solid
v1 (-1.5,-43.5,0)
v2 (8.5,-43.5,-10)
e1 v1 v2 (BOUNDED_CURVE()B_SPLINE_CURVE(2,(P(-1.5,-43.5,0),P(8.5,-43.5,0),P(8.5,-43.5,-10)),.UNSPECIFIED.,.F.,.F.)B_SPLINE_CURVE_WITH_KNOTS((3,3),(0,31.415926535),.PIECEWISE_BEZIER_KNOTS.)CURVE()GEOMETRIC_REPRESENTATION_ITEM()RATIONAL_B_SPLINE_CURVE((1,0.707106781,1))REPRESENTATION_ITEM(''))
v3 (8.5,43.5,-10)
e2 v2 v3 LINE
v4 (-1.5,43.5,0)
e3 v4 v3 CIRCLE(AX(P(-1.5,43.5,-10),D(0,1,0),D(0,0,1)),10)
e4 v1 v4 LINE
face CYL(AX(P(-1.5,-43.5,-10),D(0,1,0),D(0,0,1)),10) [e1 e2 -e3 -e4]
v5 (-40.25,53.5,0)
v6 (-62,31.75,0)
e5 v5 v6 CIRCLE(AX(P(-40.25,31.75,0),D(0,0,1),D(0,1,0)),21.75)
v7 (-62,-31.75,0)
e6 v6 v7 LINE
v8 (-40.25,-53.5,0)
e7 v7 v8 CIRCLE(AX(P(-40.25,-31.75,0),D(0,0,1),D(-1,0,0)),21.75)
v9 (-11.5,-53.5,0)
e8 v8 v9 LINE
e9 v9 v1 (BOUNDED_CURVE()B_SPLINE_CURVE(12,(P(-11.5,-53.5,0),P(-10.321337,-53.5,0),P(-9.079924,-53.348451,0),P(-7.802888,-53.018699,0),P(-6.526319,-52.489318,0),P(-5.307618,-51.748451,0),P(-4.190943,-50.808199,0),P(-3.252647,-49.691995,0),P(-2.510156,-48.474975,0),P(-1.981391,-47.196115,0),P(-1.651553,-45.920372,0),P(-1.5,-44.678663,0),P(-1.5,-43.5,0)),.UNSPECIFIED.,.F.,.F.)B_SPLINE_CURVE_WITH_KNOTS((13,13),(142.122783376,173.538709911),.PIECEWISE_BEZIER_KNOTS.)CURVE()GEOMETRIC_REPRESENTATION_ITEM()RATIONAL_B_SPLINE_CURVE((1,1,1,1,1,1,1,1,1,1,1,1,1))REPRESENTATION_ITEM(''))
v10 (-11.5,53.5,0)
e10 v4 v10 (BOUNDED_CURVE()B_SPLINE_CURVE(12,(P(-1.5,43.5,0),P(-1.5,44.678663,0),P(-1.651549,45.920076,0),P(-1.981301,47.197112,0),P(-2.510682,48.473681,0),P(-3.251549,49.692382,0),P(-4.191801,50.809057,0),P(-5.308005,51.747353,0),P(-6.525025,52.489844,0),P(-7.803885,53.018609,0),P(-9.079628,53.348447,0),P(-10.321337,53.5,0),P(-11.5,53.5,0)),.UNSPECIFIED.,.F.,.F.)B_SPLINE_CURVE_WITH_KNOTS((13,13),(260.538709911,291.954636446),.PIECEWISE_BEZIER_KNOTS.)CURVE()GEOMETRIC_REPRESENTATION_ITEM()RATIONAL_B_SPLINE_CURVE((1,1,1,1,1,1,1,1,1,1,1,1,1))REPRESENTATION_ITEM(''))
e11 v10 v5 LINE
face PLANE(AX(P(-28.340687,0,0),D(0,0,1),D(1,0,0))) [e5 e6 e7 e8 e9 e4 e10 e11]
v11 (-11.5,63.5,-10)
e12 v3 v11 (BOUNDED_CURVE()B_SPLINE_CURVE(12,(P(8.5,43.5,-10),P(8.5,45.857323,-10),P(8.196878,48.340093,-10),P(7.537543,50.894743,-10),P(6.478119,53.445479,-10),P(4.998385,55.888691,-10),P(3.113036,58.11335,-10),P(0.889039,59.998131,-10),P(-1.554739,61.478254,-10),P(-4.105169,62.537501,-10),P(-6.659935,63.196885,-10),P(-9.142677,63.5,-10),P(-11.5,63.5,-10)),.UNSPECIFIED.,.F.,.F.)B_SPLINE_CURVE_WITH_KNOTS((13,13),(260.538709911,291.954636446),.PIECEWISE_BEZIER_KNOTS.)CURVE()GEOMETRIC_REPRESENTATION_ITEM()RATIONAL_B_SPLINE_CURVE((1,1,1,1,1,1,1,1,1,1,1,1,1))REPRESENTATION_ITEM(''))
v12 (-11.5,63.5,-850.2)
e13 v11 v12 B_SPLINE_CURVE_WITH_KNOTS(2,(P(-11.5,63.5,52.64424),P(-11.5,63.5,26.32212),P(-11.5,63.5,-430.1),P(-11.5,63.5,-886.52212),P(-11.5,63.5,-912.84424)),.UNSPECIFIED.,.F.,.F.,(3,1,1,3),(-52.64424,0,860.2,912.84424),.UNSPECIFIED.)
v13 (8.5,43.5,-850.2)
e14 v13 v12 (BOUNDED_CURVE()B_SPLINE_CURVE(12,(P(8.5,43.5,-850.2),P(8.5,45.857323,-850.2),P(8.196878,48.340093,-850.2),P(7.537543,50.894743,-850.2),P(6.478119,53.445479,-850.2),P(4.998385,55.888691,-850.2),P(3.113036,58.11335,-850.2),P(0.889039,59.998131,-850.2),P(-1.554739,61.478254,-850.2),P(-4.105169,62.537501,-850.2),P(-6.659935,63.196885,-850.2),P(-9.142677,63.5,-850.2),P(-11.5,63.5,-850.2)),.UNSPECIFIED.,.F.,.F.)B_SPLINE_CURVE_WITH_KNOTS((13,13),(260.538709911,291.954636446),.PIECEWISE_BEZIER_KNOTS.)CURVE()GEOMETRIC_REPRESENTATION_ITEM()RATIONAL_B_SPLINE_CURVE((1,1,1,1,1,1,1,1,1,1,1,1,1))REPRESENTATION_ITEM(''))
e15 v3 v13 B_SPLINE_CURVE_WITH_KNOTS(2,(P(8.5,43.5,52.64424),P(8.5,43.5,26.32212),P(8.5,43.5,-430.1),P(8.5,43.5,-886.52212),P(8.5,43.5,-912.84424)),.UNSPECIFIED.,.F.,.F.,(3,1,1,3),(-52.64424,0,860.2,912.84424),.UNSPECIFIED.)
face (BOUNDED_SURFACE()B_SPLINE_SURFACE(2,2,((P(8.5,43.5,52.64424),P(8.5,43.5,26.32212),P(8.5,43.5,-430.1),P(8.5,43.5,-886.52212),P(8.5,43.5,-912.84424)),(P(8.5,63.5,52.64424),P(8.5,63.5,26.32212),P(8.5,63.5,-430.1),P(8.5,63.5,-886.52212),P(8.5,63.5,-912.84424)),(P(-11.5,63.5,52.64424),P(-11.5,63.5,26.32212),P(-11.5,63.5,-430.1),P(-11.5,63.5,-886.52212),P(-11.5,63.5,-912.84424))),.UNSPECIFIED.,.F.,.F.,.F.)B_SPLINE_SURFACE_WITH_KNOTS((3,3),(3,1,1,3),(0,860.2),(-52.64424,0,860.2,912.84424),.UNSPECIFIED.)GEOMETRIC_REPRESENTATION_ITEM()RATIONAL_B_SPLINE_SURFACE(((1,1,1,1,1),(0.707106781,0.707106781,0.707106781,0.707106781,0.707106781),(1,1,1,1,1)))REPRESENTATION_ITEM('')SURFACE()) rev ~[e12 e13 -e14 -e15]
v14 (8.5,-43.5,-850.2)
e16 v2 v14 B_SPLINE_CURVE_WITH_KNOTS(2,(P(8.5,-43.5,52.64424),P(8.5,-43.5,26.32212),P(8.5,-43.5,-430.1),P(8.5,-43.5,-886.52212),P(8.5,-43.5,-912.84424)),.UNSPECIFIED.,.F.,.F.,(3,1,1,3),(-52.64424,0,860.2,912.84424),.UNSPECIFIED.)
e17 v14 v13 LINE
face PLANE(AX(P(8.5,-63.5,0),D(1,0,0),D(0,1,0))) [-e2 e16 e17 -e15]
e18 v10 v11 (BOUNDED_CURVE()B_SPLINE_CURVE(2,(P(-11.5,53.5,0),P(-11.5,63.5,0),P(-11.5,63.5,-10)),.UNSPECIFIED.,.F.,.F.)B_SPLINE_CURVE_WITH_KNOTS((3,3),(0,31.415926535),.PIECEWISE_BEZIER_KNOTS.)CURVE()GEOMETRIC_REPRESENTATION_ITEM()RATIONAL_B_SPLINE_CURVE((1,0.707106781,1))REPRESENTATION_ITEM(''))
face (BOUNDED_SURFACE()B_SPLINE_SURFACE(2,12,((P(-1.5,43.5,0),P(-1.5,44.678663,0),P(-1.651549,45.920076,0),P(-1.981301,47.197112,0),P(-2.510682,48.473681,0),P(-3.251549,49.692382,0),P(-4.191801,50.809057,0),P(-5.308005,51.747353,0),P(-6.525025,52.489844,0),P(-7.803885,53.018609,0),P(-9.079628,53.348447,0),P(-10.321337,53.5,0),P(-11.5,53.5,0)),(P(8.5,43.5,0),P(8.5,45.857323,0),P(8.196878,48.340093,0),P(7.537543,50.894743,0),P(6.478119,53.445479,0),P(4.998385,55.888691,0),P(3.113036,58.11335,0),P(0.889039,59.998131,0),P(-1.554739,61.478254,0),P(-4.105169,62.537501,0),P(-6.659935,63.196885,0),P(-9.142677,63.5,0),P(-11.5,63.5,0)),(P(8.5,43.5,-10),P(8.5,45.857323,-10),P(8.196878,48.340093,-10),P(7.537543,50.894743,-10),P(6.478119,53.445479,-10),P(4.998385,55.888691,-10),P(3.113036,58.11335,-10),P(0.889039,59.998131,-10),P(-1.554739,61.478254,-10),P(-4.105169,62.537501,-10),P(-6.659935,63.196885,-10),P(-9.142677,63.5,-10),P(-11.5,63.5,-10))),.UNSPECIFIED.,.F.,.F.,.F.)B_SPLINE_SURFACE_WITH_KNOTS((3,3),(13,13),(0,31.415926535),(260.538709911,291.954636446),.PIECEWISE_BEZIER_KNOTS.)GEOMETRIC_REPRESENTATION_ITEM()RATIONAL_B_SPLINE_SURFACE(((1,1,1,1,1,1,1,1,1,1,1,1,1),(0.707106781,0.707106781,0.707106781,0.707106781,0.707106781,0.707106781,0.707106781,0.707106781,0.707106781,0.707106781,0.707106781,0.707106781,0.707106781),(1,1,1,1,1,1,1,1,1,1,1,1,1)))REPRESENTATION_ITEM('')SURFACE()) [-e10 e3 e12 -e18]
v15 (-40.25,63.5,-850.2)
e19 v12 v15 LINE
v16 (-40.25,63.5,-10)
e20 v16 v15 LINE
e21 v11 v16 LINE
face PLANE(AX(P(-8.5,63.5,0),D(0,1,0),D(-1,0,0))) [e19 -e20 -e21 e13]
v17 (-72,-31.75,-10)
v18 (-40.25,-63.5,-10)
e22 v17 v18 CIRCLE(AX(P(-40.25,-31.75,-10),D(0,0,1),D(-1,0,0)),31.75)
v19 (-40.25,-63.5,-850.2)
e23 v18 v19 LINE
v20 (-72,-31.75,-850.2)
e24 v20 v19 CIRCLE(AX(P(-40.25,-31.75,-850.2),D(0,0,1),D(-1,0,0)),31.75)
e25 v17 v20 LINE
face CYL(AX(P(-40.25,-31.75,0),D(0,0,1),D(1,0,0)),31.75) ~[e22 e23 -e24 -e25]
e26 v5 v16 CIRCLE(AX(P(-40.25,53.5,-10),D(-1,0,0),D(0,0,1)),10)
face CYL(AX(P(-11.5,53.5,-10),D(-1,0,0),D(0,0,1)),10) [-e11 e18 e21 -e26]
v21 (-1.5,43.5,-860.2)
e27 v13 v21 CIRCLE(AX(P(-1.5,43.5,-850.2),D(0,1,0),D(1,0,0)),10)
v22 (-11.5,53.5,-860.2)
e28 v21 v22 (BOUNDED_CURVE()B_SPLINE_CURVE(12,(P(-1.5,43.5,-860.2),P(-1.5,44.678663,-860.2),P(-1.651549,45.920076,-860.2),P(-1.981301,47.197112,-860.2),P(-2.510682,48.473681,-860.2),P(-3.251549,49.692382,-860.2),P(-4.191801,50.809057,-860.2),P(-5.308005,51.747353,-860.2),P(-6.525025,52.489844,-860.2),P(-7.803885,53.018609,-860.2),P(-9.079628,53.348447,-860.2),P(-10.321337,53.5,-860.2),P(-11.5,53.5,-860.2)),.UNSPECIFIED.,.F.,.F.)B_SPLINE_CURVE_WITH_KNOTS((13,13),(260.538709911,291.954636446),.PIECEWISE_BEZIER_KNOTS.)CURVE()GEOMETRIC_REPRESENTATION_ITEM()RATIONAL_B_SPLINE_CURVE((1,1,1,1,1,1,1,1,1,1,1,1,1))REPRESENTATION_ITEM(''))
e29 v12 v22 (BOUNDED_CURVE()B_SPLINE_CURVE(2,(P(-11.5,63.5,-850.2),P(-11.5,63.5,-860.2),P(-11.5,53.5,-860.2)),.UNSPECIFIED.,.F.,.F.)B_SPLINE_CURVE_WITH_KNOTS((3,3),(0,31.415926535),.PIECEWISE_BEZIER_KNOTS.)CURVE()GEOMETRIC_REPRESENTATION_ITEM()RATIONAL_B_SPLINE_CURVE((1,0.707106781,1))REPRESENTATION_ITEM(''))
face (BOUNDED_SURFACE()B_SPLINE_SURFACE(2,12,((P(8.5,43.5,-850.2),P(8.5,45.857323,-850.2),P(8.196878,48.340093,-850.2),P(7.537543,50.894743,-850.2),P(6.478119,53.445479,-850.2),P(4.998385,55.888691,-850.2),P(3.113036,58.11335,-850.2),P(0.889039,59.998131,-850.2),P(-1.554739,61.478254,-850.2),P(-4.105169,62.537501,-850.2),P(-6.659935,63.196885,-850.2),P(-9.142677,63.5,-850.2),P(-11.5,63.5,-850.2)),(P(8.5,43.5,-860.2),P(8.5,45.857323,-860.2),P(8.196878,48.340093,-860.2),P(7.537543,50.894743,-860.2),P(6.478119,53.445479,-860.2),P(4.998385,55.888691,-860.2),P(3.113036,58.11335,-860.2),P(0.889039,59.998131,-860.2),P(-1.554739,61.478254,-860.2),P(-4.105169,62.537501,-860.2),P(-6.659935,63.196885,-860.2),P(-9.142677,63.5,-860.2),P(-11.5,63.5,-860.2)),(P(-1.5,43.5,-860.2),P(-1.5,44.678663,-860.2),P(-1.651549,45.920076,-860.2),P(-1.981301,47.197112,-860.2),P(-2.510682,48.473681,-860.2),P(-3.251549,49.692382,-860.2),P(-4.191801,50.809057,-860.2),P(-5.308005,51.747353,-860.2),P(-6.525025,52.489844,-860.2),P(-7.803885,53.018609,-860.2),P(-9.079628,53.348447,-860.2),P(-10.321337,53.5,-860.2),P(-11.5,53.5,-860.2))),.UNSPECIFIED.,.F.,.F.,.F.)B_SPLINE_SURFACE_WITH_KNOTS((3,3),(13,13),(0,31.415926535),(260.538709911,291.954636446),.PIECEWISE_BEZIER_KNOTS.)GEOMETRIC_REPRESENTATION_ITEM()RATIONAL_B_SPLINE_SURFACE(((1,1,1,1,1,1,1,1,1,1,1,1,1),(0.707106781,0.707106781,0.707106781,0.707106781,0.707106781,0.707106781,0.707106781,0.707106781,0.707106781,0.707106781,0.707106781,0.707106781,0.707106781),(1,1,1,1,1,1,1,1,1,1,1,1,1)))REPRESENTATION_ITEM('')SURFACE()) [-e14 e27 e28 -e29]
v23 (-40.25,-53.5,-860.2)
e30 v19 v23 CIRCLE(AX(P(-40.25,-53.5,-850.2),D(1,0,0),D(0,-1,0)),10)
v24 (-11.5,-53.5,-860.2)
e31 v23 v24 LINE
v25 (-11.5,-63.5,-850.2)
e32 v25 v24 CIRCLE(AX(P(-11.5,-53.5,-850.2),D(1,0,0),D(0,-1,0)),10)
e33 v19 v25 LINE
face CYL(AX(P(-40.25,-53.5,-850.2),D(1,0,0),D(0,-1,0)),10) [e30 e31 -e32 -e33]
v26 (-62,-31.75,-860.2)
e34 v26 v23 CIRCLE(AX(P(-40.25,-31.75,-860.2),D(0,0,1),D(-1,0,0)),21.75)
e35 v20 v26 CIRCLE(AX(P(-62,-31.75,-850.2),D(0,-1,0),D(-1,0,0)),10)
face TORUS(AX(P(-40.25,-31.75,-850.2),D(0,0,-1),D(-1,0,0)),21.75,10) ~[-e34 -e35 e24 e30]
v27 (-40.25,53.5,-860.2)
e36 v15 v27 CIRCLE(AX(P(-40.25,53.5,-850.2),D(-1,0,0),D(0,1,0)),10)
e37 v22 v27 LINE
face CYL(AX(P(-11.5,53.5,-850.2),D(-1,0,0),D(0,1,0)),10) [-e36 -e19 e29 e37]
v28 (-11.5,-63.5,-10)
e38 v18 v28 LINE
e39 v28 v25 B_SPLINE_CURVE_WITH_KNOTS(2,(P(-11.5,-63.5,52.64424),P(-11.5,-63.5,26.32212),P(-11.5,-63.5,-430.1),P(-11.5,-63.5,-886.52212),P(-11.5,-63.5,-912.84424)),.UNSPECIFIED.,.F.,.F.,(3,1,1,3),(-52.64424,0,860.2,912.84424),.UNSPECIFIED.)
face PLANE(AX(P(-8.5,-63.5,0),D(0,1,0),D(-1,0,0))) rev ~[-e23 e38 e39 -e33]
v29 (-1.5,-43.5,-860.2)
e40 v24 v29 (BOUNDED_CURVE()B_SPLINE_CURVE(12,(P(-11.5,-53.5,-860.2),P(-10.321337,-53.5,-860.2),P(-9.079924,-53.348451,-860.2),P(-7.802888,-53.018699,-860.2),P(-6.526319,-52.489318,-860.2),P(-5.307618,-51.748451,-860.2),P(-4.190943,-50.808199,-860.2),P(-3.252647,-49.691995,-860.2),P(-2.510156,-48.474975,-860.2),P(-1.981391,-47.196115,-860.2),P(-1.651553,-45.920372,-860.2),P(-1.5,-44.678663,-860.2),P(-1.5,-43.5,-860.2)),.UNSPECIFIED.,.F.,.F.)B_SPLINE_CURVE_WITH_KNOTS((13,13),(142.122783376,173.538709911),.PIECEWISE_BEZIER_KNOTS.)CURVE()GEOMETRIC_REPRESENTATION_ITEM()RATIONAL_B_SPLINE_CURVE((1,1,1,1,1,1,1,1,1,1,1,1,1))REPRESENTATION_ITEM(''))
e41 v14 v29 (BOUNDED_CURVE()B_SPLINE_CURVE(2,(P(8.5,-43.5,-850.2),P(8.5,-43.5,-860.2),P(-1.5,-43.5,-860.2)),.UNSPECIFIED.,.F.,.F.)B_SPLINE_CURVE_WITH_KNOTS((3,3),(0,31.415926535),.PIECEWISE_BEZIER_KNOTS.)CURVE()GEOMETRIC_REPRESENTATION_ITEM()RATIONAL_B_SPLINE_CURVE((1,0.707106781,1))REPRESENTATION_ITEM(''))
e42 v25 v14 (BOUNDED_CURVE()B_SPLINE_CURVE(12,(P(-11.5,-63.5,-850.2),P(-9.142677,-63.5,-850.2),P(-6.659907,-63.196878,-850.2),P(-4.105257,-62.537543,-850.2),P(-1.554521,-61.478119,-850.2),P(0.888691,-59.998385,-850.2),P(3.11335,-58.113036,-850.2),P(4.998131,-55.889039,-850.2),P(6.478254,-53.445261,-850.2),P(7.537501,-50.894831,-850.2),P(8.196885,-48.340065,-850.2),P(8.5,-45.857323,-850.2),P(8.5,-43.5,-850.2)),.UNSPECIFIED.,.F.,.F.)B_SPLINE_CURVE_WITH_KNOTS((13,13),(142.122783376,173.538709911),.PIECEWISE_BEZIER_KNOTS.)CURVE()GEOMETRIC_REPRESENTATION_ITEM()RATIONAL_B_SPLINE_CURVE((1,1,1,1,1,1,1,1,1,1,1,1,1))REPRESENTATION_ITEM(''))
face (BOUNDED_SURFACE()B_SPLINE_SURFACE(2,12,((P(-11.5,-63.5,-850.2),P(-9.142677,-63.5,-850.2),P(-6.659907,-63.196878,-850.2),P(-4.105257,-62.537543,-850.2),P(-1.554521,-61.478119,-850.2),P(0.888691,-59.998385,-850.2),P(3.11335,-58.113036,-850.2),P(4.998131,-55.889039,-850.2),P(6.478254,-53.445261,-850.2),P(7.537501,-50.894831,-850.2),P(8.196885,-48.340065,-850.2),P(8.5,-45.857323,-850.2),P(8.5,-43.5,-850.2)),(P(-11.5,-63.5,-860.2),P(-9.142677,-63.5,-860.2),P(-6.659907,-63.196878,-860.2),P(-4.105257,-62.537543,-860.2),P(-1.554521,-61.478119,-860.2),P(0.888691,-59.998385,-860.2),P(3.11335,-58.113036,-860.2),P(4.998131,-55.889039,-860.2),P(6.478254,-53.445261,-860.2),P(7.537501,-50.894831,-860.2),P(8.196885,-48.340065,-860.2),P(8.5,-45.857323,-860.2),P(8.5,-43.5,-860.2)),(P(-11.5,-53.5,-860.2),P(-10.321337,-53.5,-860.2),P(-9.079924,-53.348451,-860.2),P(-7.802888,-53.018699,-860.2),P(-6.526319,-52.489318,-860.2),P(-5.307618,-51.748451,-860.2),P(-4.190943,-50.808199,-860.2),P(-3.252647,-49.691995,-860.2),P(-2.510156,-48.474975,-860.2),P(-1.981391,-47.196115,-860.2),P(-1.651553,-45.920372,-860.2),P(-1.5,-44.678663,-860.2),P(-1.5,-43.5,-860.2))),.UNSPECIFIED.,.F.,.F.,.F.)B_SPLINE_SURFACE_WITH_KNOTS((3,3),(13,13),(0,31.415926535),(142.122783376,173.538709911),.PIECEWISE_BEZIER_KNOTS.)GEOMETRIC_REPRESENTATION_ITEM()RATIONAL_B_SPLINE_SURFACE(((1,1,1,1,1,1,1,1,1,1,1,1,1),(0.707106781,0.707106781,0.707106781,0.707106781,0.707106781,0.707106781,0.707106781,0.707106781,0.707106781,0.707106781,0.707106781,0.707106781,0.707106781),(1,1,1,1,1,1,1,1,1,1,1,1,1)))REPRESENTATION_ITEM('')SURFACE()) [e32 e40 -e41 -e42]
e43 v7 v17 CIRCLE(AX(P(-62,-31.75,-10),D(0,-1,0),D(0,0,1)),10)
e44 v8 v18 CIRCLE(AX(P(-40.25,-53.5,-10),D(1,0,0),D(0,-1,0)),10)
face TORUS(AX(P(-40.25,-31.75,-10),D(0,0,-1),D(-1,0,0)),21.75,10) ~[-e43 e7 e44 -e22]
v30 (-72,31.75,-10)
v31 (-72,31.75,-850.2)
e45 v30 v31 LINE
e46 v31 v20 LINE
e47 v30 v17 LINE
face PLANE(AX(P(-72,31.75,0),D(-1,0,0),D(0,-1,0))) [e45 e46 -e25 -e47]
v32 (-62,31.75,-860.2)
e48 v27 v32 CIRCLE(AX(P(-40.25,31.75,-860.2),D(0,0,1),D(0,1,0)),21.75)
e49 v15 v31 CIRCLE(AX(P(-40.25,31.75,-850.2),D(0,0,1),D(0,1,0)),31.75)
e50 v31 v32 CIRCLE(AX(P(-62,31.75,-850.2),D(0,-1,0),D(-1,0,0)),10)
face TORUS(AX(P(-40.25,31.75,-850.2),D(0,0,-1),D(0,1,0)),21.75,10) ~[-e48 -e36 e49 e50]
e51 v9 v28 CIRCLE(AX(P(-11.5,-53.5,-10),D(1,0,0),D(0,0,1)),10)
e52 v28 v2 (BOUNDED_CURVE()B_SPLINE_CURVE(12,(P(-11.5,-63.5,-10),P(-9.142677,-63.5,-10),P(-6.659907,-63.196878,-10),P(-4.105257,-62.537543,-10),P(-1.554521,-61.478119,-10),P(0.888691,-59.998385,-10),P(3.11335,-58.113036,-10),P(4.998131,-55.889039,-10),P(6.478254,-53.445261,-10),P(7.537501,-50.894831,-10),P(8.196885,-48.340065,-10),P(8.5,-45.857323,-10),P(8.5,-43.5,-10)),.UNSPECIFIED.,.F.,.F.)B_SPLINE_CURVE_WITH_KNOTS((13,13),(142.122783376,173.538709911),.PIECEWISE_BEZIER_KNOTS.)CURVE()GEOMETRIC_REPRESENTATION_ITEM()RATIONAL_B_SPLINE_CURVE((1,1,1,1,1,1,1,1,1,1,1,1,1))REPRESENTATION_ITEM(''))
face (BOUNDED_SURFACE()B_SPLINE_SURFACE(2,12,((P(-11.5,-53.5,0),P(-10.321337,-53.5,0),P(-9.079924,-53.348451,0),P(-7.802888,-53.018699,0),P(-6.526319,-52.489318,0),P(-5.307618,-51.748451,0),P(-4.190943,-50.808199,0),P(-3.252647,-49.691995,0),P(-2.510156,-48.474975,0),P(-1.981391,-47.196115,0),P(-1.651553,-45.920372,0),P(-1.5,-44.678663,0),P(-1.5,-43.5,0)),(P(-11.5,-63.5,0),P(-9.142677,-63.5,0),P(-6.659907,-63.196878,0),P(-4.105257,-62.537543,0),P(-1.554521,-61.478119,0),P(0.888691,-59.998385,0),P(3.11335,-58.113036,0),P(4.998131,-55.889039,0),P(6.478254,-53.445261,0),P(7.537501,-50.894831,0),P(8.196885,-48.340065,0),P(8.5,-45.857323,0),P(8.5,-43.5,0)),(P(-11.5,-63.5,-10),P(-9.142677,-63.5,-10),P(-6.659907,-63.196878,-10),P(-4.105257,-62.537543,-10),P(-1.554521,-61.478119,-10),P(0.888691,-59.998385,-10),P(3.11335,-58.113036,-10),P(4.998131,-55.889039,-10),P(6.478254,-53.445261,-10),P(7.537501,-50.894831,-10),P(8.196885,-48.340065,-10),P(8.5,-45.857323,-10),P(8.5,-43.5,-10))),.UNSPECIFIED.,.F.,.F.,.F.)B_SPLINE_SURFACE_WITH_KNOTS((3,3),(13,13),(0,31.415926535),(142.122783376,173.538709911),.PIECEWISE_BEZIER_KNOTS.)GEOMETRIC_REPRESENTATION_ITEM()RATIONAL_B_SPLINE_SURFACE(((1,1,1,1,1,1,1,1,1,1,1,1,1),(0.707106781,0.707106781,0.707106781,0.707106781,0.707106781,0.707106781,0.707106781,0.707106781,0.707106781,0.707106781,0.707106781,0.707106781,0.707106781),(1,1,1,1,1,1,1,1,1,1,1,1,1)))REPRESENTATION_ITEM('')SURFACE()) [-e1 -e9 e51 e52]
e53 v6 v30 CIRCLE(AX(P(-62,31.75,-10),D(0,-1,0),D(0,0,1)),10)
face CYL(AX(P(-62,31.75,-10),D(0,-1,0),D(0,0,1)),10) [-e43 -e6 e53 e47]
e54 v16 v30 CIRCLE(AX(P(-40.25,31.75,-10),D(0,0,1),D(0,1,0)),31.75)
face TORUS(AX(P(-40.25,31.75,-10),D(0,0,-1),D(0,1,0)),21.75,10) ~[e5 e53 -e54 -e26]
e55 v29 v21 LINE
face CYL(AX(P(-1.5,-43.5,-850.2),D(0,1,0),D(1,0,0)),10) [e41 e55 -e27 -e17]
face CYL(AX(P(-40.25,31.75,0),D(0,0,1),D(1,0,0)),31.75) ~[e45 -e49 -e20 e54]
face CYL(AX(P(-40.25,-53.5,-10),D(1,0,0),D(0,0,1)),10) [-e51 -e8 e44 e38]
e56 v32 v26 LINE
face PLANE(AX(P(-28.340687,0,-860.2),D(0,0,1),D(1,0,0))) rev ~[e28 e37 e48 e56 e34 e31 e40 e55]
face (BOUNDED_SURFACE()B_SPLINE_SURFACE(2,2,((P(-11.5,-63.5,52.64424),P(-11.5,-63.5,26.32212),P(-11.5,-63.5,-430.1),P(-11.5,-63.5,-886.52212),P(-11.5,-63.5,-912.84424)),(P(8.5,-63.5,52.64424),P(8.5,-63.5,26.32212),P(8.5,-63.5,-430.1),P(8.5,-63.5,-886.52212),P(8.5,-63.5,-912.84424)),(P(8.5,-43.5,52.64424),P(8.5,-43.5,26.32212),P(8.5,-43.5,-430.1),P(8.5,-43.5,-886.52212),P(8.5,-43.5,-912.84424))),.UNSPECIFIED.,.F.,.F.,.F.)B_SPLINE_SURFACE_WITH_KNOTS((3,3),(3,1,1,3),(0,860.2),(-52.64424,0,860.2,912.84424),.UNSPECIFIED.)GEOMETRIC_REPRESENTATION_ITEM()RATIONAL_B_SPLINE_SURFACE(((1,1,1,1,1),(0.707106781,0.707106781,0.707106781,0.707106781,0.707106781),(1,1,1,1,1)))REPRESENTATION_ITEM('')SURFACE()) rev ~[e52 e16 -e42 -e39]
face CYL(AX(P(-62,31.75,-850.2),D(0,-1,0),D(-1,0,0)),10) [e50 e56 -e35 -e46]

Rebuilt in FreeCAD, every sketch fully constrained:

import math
import FreeCAD as App
import Part
import Sketcher

V = App.Vector
Q = App.Units.Quantity


def edges_at(feature, points):
    """Names of the edges that pass closest to the given points."""
    edges = feature.Shape.Edges
    near = lambda p: min(range(len(edges)), key=lambda i: edges[i].distToShape(Part.Vertex(*p))[0])
    return sorted({f"Edge{near(p) + 1}" for p in points})

doc = App.newDocument("Part")
body = doc.addObject("PartDesign::Body", "Body")

# Sketch on XY plane
sketch1 = body.newObject("Sketcher::SketchObject", "Sketch")
sketch1.AttachmentSupport = (doc.getObject("XY_Plane"), [""])
sketch1.MapMode = "FlatFace"
sketch1.addGeometry([
    Part.LineSegment(V(8.5, 63.5, 0), V(-40.25, 63.5, 0)),  # 0
    Part.ArcOfCircle(Part.Circle(V(-40.25, 31.75, 0), V(0, 0, 1), 31.75), math.radians(90), math.radians(180)),  # 1
    Part.LineSegment(V(-72, 31.75, 0), V(-72, -31.75, 0)),  # 2
    Part.ArcOfCircle(Part.Circle(V(-40.25, -31.75, 0), V(0, 0, 1), 31.75), math.radians(180), math.radians(270)),  # 3
    Part.LineSegment(V(-40.25, -63.5, 0), V(8.5, -63.5, 0)),  # 4
    Part.LineSegment(V(8.5, -63.5, 0), V(8.5, 63.5, 0)),  # 5
], False)
sketch1.addConstraint([
    Sketcher.Constraint("Tangent", 0, 2, 1, 1),
    Sketcher.Constraint("Tangent", 1, 2, 2, 1),
    Sketcher.Constraint("Tangent", 2, 2, 3, 1),
    Sketcher.Constraint("Tangent", 3, 2, 4, 1),
    Sketcher.Constraint("Coincident", 4, 2, 5, 1),
    Sketcher.Constraint("Coincident", 5, 2, 0, 1),
    Sketcher.Constraint("Horizontal", 0),
    Sketcher.Constraint("Vertical", 2),
    Sketcher.Constraint("Horizontal", 4),
    Sketcher.Constraint("Vertical", 5),
    Sketcher.Constraint("Equal", 1, 3),
    Sketcher.Constraint("DistanceY", 5, 1, 5, 2, Q("5 in")),
    Sketcher.Constraint("Radius", 1, Q("1.25 in")),
    Sketcher.Constraint("DistanceY", -1, 1, 0, 2, Q("2.5 in")),
    Sketcher.Constraint("DistanceX", 0, 2, 0, 1, Q("1.9193 in")),
    Sketcher.Constraint("DistanceX", 1, 3, -1, 1, 40.25),
])
pad1 = body.newObject("PartDesign::Pad", "Pad")
pad1.Profile = sketch1
pad1.Length = 860.2
pad1.Reversed = True
doc.recompute()

fillet = body.newObject("PartDesign::Fillet", "Fillet")
fillet.Base = (pad1, edges_at(pad1, [(8.5, -63.5, -430.1)]))
fillet.Radius = Q("0.7874016 in")
doc.recompute()

fillet2 = body.newObject("PartDesign::Fillet", "Fillet001")
fillet2.Base = (fillet, edges_at(fillet, [(8.5, 63.5, -430.1)]))
fillet2.Radius = Q("0.7874016 in")
doc.recompute()

fillet3 = body.newObject("PartDesign::Fillet", "Fillet002")
fillet3.Base = (fillet2, edges_at(fillet2, [
    (-72, 0, -860.2),
    (-62.701, 54.201, -860.2),
    (-25.875, 63.5, -860.2),
    (2.642, 57.642, -860.2),
    (8.5, 0, -860.2),
    (2.642, -57.642, -860.2),
    (-25.875, -63.5, -860.2),
    (-62.701, -54.201, -860.2),
    (-72, 0, 0),
    (-62.701, 54.201, 0),
    (-25.875, 63.5, 0),
    (2.642, 57.642, 0),
    (8.5, 0, 0),
    (2.642, -57.642, 0),
    (-25.875, -63.5, 0),
    (-62.701, -54.201, 0),
]))
fillet3.Radius = Q("0.3937008 in")

doc.recompute()
